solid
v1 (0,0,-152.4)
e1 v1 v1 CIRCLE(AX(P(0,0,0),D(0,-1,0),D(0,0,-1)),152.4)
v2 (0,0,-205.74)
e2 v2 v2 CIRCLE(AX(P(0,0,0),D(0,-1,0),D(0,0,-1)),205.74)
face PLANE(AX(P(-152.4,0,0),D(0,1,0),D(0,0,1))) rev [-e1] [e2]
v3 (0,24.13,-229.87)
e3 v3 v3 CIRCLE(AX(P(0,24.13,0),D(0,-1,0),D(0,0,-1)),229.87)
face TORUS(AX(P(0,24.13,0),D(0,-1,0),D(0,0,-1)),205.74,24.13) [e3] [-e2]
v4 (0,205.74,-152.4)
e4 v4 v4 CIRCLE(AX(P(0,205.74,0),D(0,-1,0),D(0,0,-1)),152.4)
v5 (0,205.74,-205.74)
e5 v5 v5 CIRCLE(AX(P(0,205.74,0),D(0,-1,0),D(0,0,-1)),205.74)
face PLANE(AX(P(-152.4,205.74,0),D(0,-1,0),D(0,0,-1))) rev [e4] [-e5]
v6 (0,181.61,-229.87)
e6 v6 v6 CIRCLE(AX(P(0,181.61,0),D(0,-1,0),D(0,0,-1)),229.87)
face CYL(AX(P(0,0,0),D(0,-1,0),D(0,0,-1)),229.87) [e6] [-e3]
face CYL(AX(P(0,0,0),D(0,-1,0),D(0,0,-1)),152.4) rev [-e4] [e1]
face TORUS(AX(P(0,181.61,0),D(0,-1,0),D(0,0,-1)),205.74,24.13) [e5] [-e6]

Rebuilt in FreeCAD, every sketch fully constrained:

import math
import FreeCAD as App
import Part
import Sketcher
Q = App.Units.Quantity

doc = App.newDocument("Part")
body = doc.addObject("PartDesign::Body", "Body")

sketch1 = doc.addObject("Sketcher::SketchObject", "Sketch")
body.addObject(sketch1)
sketch1.AttachmentSupport = (doc.XY_Plane, [""])
sketch1.MapMode = "FlatFace"
sketch1.addGeometry([
    Part.LineSegment(App.Vector(-152, 0, 0), App.Vector(-152, 206, 0)),
    Part.LineSegment(App.Vector(-152, 206, 0), App.Vector(-206, 206, 0)),
    Part.ArcOfCircle(Part.Circle(App.Vector(-206, 182, 0), App.Vector(0, 0, 1), 24), math.radians(90), math.radians(180)),
    Part.LineSegment(App.Vector(-230, 182, 0), App.Vector(-230, 24, 0)),
    Part.ArcOfCircle(Part.Circle(App.Vector(-206, 24, 0), App.Vector(0, 0, 1), 24), math.radians(180), math.radians(270)),
    Part.LineSegment(App.Vector(-206, 0, 0), App.Vector(-152, 0, 0)),
], False)
sketch1.addConstraint([
    Sketcher.Constraint("Coincident", 0, 2, 1, 1),
    Sketcher.Constraint("Tangent", 1, 2, 2, 1),
    Sketcher.Constraint("Tangent", 2, 2, 3, 1),
    Sketcher.Constraint("Tangent", 3, 2, 4, 1),
    Sketcher.Constraint("Tangent", 4, 2, 5, 1),
    Sketcher.Constraint("Coincident", 5, 2, 0, 1),
    Sketcher.Constraint("Vertical", 0),
    Sketcher.Constraint("Horizontal", 1),
    Sketcher.Constraint("Vertical", 3),
    Sketcher.Constraint("Horizontal", 5),
    Sketcher.Constraint("Equal", 2, 4),
    Sketcher.Constraint("PointOnObject", 4, 2, -1),
    Sketcher.Constraint("Radius", 2, Q("0.95 in")),
    Sketcher.Constraint("DistanceX", 1, 2, 1, 1, Q("2.1 in")),
    Sketcher.Constraint("DistanceY", 0, 1, 0, 2, Q("8.1 in")),
    Sketcher.Constraint("DistanceX", 0, 2, -1, 1, Q("6 in")),
])
revolution = doc.addObject("PartDesign::Revolution", "Revolution")
body.addObject(revolution)
revolution.Profile = sketch1
revolution.ReferenceAxis = (sketch1, ["V_Axis"])
revolution.Angle = 360

doc.recompute()
